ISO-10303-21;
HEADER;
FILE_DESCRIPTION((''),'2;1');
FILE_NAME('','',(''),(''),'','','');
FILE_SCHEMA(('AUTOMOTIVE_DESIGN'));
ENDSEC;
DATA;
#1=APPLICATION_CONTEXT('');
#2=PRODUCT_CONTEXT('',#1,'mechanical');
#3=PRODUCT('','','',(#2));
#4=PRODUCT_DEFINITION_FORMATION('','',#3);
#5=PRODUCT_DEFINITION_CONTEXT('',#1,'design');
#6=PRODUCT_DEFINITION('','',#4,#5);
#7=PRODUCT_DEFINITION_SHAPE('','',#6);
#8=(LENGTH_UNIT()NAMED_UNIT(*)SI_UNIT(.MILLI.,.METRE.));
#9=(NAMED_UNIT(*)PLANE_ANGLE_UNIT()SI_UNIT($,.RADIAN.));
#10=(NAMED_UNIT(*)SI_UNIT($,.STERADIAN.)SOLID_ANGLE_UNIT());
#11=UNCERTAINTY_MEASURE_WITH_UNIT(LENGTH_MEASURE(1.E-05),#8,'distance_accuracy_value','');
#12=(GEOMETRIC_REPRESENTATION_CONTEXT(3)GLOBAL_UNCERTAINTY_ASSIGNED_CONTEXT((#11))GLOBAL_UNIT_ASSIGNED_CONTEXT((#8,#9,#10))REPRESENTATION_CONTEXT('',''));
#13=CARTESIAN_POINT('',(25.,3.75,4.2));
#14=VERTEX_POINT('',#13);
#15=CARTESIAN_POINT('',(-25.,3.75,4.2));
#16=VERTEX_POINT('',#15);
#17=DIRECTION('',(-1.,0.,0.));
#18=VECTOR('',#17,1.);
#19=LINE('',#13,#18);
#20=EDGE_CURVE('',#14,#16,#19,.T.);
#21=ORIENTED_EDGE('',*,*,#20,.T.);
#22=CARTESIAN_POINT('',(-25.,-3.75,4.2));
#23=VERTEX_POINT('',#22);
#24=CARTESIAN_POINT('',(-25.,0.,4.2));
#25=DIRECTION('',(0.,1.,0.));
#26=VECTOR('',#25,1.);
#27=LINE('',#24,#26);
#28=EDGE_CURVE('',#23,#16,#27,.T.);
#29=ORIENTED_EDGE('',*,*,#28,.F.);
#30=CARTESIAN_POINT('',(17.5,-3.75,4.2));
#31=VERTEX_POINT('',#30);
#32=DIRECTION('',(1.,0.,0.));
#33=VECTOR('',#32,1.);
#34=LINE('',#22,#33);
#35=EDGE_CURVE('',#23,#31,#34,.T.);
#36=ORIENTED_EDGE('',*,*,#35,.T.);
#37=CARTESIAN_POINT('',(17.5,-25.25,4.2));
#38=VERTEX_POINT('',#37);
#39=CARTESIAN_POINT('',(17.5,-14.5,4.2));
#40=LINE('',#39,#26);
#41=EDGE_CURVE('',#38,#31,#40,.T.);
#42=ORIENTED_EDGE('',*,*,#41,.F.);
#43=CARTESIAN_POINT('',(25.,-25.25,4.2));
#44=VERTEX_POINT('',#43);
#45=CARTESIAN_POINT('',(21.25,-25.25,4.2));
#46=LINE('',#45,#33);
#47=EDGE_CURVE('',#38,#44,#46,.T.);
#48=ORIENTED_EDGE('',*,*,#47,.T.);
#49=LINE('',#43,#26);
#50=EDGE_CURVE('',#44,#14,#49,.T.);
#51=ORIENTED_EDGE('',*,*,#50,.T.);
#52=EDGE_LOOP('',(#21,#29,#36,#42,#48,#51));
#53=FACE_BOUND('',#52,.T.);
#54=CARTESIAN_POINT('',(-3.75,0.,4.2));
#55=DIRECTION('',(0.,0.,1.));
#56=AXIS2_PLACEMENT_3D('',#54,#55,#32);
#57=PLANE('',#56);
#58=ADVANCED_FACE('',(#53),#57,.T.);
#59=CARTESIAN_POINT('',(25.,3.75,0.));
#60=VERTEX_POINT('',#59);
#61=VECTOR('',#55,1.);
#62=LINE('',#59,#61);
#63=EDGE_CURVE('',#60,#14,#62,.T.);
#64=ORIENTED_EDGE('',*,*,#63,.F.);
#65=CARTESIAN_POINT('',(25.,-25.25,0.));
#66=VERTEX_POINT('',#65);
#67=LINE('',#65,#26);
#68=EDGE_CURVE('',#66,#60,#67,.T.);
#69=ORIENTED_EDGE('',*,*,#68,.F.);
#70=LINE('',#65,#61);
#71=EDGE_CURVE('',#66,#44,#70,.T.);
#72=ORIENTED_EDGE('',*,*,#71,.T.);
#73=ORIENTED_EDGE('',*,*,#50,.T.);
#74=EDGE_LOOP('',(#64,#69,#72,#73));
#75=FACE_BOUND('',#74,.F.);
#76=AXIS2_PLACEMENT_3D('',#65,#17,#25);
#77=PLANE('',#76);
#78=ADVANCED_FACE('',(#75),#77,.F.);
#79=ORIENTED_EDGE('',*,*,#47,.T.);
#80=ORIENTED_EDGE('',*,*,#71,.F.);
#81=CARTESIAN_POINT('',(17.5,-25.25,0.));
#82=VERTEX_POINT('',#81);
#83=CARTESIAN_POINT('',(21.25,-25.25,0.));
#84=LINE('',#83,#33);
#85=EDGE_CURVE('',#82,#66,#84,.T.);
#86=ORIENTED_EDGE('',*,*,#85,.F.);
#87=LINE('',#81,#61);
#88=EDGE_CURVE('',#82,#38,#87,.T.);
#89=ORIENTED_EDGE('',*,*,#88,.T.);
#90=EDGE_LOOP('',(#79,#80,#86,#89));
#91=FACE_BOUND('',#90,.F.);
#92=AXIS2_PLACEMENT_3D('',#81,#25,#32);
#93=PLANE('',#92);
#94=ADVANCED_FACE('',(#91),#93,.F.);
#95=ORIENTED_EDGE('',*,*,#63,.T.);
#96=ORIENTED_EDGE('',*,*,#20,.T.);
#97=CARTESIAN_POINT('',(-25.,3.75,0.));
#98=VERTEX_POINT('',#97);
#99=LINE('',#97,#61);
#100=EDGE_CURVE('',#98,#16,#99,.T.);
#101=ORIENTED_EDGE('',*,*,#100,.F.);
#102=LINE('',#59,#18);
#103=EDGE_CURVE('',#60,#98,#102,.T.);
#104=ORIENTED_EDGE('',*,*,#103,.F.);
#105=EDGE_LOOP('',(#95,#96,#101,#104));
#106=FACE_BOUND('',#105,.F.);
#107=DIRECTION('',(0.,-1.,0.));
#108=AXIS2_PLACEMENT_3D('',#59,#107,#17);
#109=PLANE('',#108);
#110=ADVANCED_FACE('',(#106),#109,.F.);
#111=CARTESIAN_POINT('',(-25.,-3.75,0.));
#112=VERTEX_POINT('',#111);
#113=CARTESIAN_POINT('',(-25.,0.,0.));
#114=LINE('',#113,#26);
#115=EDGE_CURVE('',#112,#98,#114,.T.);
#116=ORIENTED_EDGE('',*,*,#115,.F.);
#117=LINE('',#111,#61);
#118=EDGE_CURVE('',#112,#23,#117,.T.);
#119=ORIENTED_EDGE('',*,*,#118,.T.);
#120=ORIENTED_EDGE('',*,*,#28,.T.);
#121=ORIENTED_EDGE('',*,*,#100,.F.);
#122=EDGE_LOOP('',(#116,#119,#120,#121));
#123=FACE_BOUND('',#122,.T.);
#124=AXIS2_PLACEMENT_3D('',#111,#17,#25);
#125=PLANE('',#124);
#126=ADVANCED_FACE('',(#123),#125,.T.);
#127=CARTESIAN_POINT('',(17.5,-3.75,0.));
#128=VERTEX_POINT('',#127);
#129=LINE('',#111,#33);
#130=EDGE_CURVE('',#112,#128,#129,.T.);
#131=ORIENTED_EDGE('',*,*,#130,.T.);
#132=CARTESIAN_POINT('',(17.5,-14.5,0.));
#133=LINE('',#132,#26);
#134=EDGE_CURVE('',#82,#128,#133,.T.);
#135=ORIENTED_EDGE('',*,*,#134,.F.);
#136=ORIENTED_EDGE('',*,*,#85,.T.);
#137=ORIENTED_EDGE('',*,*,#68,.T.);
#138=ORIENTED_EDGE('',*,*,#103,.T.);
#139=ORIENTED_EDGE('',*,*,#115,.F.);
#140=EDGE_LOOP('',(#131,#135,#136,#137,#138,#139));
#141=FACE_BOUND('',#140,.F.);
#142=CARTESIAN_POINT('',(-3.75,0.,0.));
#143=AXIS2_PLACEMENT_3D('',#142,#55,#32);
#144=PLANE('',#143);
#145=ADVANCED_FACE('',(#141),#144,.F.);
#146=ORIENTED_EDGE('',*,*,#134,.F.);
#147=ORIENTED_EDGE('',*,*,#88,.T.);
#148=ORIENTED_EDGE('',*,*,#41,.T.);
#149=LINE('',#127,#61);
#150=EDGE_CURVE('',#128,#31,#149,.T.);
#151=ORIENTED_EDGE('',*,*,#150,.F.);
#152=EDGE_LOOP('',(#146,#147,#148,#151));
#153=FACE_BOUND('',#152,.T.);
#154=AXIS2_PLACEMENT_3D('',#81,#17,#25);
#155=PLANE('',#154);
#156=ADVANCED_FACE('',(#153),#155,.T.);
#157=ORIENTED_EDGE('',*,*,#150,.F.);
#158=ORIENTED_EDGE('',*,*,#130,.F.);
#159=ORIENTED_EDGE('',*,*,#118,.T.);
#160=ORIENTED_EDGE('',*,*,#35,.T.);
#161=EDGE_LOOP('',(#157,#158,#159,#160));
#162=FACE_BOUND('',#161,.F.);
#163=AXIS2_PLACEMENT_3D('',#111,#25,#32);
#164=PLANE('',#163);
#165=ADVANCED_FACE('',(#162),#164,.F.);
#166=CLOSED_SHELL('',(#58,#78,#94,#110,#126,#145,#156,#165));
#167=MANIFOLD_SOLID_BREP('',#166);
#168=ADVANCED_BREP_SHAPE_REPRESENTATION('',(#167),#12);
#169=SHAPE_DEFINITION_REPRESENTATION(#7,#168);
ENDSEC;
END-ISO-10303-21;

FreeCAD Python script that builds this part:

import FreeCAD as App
import Part
import Sketcher
from FreeCAD import Vector


def add_polygon(sketch, points):
    """Adds a closed chain of lines whose ends are joined by coincident constraints."""
    first, n = sketch.GeometryCount, len(points)
    for a, b in zip(points, points[1:] + points[:1]):
        sketch.addGeometry(Part.LineSegment(App.Vector(*a, 0), App.Vector(*b, 0)), False)
    for i in range(n):
        sketch.addConstraint(Sketcher.Constraint("Coincident", first + i, 2, first + (i + 1) % n, 1))

doc = App.newDocument("Part")
body = doc.addObject("PartDesign::Body", "Body")

sketch1 = body.newObject("Sketcher::SketchObject", "Sketch")
sketch1.AttachmentSupport = (doc.getObject("XY_Plane"), [""])
sketch1.MapMode = "FlatFace"
add_polygon(sketch1, [(-25, 3.75), (-25, -3.75), (17.5, -3.75), (17.5, -25.25), (25, -25.25), (25, 3.75)])
sketch1.addConstraint(Sketcher.Constraint("Vertical", 0))
sketch1.addConstraint(Sketcher.Constraint("Horizontal", 1))
sketch1.addConstraint(Sketcher.Constraint("Vertical", 2))
sketch1.addConstraint(Sketcher.Constraint("Horizontal", 3))
sketch1.addConstraint(Sketcher.Constraint("Vertical", 4))
sketch1.addConstraint(Sketcher.Constraint("Horizontal", 5))
sketch1.addConstraint(Sketcher.Constraint("Symmetric", 0, 2, 4, 2, -1, 1))
sketch1.addConstraint(Sketcher.Constraint("Equal", 3, 0))
sketch1.addConstraint(Sketcher.Constraint("DistanceX", 5, 2, 5, 1, 50.0))
sketch1.addConstraint(Sketcher.Constraint("DistanceY", 4, 1, 4, 2, 29.0))
sketch1.addConstraint(Sketcher.Constraint("DistanceX", 1, 1, 1, 2, 42.5))
pad1 = body.newObject("PartDesign::Pad", "Pad")
pad1.Profile = sketch1
pad1.Length = 4.2

sketch2 = body.newObject("Sketcher::SketchObject", "Sketch001")
sketch2.AttachmentSupport = (doc.getObject("XY_Plane"), [""])
sketch2.MapMode = "FlatFace"
add_polygon(sketch2, [(-25, 3.75), (-25, -3.75), (17.5, -3.75), (17.5, -25.25), (25, -25.25), (25, 3.75)])
sketch2.addConstraint(Sketcher.Constraint("Vertical", 0))
sketch2.addConstraint(Sketcher.Constraint("Horizontal", 1))
sketch2.addConstraint(Sketcher.Constraint("Vertical", 2))
sketch2.addConstraint(Sketcher.Constraint("Horizontal", 3))
sketch2.addConstraint(Sketcher.Constraint("Vertical", 4))
sketch2.addConstraint(Sketcher.Constraint("Horizontal", 5))
sketch2.addConstraint(Sketcher.Constraint("Symmetric", 0, 2, 4, 2, -1, 1))
sketch2.addConstraint(Sketcher.Constraint("Equal", 3, 0))
sketch2.addConstraint(Sketcher.Constraint("DistanceX", 5, 2, 5, 1, 50.0))
sketch2.addConstraint(Sketcher.Constraint("DistanceY", 4, 1, 4, 2, 29.0))
sketch2.addConstraint(Sketcher.Constraint("DistanceX", 1, 1, 1, 2, 42.5))
pad2 = body.newObject("PartDesign::Pad", "Pad001")
pad2.Profile = sketch2
pad2.Length = 4.2

doc.recompute()
